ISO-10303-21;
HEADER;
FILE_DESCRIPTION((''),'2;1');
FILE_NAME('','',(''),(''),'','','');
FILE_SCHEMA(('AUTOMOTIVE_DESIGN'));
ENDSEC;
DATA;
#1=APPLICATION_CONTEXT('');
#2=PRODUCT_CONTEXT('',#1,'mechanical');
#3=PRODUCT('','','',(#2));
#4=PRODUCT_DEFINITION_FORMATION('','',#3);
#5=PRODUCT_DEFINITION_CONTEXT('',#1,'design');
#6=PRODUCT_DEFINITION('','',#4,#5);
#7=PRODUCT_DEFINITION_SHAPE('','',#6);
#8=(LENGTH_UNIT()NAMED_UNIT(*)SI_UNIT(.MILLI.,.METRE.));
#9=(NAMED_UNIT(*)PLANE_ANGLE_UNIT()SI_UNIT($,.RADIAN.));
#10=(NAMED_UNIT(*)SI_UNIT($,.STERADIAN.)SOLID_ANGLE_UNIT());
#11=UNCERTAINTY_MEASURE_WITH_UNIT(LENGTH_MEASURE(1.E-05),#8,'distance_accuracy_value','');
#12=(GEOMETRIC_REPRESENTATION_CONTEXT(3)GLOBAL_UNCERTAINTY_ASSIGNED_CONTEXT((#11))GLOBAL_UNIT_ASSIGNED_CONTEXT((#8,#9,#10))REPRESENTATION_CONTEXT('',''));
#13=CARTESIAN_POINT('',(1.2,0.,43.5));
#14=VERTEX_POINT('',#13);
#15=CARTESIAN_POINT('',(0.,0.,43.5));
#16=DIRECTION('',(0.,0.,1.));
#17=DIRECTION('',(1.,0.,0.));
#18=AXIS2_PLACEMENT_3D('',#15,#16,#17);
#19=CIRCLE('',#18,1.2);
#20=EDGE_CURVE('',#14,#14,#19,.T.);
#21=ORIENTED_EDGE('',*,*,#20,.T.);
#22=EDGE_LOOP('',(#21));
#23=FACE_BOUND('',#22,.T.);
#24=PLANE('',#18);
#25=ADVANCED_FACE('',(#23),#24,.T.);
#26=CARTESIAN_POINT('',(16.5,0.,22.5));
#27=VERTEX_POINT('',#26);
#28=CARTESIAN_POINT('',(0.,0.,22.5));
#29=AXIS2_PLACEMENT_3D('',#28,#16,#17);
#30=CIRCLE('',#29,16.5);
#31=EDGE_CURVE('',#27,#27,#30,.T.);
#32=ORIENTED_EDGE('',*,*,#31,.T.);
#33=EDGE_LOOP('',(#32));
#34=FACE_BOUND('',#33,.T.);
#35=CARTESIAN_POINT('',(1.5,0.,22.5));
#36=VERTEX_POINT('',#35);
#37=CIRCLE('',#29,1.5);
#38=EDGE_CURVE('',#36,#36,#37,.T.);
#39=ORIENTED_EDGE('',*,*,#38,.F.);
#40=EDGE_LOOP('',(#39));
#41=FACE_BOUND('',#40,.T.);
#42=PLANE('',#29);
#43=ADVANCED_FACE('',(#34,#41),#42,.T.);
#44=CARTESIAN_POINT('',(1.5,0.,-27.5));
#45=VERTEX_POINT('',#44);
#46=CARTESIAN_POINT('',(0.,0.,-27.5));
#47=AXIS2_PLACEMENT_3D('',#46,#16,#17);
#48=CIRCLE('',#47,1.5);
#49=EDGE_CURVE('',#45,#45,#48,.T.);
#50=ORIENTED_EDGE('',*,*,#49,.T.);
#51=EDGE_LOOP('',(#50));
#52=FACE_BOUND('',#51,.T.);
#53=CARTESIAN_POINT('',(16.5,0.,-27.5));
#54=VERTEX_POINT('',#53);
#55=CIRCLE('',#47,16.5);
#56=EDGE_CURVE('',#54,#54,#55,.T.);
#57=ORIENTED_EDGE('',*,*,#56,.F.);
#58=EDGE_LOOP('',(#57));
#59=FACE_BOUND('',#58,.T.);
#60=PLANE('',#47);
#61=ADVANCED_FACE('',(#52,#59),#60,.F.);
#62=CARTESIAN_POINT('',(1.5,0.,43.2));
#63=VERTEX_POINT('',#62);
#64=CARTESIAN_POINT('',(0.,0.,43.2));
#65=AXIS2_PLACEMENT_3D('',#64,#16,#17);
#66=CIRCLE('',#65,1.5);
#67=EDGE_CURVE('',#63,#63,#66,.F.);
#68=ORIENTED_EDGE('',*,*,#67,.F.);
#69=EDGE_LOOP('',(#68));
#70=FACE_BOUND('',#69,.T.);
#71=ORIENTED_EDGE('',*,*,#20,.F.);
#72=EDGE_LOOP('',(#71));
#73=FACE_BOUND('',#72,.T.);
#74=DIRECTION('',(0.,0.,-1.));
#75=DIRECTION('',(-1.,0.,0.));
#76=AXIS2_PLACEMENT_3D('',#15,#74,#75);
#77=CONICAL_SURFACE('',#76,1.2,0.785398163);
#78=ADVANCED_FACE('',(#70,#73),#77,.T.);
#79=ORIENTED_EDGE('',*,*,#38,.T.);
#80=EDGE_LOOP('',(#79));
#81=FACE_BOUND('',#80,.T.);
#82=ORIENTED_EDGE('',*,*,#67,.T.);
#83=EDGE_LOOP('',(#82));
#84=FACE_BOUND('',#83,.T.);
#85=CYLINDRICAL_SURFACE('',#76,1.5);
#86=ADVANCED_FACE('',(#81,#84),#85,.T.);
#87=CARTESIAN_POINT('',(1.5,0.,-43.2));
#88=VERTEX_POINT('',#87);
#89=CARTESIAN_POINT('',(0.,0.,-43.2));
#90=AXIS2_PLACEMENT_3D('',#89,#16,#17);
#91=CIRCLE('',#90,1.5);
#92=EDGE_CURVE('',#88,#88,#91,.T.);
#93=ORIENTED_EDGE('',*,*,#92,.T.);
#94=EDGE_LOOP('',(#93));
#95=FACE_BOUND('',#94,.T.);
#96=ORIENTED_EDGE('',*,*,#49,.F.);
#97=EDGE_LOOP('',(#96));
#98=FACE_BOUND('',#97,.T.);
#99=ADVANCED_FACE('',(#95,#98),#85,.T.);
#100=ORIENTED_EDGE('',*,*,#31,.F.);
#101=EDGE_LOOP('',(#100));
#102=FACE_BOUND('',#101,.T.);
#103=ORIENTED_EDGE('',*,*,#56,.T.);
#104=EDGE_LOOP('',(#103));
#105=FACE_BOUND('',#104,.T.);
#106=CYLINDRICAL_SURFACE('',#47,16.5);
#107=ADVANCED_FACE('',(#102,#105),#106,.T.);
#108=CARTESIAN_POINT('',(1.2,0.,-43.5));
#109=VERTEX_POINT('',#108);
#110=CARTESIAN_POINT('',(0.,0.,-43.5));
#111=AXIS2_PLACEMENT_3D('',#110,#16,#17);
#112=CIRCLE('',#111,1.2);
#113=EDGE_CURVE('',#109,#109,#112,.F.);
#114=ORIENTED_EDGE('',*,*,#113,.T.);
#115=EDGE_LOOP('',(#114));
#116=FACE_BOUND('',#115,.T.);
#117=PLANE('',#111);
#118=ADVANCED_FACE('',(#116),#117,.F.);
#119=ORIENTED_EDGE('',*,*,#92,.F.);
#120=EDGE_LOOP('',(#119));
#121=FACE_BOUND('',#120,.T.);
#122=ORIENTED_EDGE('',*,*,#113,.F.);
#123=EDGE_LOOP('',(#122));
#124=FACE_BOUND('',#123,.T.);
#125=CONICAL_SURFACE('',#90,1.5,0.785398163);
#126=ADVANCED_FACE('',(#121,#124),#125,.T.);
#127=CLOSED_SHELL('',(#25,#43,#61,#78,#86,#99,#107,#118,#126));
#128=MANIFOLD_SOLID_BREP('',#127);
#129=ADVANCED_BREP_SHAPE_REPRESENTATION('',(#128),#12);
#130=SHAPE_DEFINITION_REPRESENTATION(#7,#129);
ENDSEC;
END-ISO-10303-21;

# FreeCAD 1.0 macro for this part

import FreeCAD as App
import Part
import Sketcher


def edges_at(feature, points):
    """Names of the edges that pass closest to the given points."""
    edges = feature.Shape.Edges
    near = lambda p: min(range(len(edges)), key=lambda i: edges[i].distToShape(Part.Vertex(*p))[0])
    return sorted({f"Edge{near(p) + 1}" for p in points})

doc = App.newDocument("Part")
params = doc.addObject("Spreadsheet::Sheet", "Params")
for row, (alias, value) in enumerate([
    ("sketch1_diameter", "3 mm"),
    ("pad1_length", "87 mm"),
    ("sketch2_diameter", "33 mm"),
    ("sketch2_diameter2", "3 mm"),
    ("pad2_length", "50 mm"),
    ("chamfer_size", "0.3 mm"),
], start=1):
    params.set(f"A{row}", alias)
    params.set(f"B{row}", "=" + value)
    params.setAlias(f"B{row}", alias)

body = doc.addObject("PartDesign::Body", "Body")

sketch1 = body.newObject("Sketcher::SketchObject", "Sketch")
sketch1.AttachmentSupport = (doc.getObject("XY_Plane"), [""])
sketch1.MapMode = "FlatFace"
sketch1.addGeometry(Part.Circle(App.Vector(0, 0, 0), App.Vector(0, 0, 1), 1.5), False)
sketch1.addConstraint([
    Sketcher.Constraint("Coincident", 0, 3, -1, 1),
    Sketcher.Constraint("Diameter", 0, 3.0),
])
sketch1.setExpression("Constraints[1]", "Params.sketch1_diameter")
pad1 = body.newObject("PartDesign::Pad", "Pad")
pad1.Profile = sketch1
pad1.setExpression("Length", "Params.pad1_length")
pad1.Midplane = True

sketch2 = body.newObject("Sketcher::SketchObject", "Sketch001")
sketch2.AttachmentSupport = (doc.getObject("XY_Plane"), [""])
sketch2.MapMode = "FlatFace"
sketch2.AttachmentOffset = App.Placement(App.Vector(0, 0, 22.5), App.Rotation())
sketch2.addGeometry([
    Part.Circle(App.Vector(0, 0, 0), App.Vector(0, 0, 1), 16.5),
    Part.Circle(App.Vector(0, 0, 0), App.Vector(0, 0, 1), 1.5),
], False)
sketch2.addConstraint([
    Sketcher.Constraint("Coincident", 0, 3, -1, 1),
    Sketcher.Constraint("Coincident", 1, 3, -1, 1),
    Sketcher.Constraint("Diameter", 0, 33.0),
    Sketcher.Constraint("Diameter", 1, 3.0),
])
sketch2.setExpression("Constraints[2]", "Params.sketch2_diameter")
sketch2.setExpression("Constraints[3]", "Params.sketch2_diameter2")
pad2 = body.newObject("PartDesign::Pad", "Pad001")
pad2.Profile = sketch2
pad2.setExpression("Length", "Params.pad2_length")
pad2.Reversed = True
doc.recompute()

chamfer = body.newObject("PartDesign::Chamfer", "Chamfer")
chamfer.Base = (pad2, edges_at(pad2, [(-1.5, 0, -43.5), (-1.5, 0, 43.5)]))
chamfer.setExpression("Size", "Params.chamfer_size")

doc.recompute()
